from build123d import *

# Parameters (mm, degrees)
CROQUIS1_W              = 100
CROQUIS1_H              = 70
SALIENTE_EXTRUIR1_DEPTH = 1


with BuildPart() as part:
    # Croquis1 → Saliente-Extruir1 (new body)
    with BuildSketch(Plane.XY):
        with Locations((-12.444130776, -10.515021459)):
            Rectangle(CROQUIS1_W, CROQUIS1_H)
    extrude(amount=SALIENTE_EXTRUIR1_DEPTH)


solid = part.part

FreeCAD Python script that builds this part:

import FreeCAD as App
import Part
import Sketcher

V = App.Vector

doc = App.newDocument("Part")
body = doc.addObject("PartDesign::Body", "Body")

sketch1 = body.newObject("Sketcher::SketchObject", "Sketch")
sketch1.AttachmentSupport = (doc.getObject("XY_Plane"), [""])
sketch1.MapMode = "FlatFace"
sketch1.addGeometry([
    Part.LineSegment(V(-62.444131, 24.484979, 0), V(-62.444131, -45.515021, 0)),
    Part.LineSegment(V(-62.444131, -45.515021, 0), V(37.555869, -45.515021, 0)),
    Part.LineSegment(V(37.555869, -45.515021, 0), V(37.555869, 24.484979, 0)),
    Part.LineSegment(V(37.555869, 24.484979, 0), V(-62.444131, 24.484979, 0)),
], False)
sketch1.addConstraint([
    Sketcher.Constraint("Coincident", 0, 2, 1, 1),
    Sketcher.Constraint("Coincident", 1, 2, 2, 1),
    Sketcher.Constraint("Coincident", 2, 2, 3, 1),
    Sketcher.Constraint("Coincident", 3, 2, 0, 1),
    Sketcher.Constraint("Vertical", 0),
    Sketcher.Constraint("Horizontal", 1),
    Sketcher.Constraint("Vertical", 2),
    Sketcher.Constraint("Horizontal", 3),
    Sketcher.Constraint("DistanceX", 1, 1, 1, 2, 100.0),
    Sketcher.Constraint("DistanceY", 0, 2, 0, 1, 70.0),
    Sketcher.Constraint("DistanceX", 0, 2, -1, 1, 62.444131),
    Sketcher.Constraint("DistanceY", 0, 2, -1, 1, 45.515021),
])
pad1 = body.newObject("PartDesign::Pad", "Pad")
pad1.Profile = sketch1
pad1.Length = 1

doc.recompute()
